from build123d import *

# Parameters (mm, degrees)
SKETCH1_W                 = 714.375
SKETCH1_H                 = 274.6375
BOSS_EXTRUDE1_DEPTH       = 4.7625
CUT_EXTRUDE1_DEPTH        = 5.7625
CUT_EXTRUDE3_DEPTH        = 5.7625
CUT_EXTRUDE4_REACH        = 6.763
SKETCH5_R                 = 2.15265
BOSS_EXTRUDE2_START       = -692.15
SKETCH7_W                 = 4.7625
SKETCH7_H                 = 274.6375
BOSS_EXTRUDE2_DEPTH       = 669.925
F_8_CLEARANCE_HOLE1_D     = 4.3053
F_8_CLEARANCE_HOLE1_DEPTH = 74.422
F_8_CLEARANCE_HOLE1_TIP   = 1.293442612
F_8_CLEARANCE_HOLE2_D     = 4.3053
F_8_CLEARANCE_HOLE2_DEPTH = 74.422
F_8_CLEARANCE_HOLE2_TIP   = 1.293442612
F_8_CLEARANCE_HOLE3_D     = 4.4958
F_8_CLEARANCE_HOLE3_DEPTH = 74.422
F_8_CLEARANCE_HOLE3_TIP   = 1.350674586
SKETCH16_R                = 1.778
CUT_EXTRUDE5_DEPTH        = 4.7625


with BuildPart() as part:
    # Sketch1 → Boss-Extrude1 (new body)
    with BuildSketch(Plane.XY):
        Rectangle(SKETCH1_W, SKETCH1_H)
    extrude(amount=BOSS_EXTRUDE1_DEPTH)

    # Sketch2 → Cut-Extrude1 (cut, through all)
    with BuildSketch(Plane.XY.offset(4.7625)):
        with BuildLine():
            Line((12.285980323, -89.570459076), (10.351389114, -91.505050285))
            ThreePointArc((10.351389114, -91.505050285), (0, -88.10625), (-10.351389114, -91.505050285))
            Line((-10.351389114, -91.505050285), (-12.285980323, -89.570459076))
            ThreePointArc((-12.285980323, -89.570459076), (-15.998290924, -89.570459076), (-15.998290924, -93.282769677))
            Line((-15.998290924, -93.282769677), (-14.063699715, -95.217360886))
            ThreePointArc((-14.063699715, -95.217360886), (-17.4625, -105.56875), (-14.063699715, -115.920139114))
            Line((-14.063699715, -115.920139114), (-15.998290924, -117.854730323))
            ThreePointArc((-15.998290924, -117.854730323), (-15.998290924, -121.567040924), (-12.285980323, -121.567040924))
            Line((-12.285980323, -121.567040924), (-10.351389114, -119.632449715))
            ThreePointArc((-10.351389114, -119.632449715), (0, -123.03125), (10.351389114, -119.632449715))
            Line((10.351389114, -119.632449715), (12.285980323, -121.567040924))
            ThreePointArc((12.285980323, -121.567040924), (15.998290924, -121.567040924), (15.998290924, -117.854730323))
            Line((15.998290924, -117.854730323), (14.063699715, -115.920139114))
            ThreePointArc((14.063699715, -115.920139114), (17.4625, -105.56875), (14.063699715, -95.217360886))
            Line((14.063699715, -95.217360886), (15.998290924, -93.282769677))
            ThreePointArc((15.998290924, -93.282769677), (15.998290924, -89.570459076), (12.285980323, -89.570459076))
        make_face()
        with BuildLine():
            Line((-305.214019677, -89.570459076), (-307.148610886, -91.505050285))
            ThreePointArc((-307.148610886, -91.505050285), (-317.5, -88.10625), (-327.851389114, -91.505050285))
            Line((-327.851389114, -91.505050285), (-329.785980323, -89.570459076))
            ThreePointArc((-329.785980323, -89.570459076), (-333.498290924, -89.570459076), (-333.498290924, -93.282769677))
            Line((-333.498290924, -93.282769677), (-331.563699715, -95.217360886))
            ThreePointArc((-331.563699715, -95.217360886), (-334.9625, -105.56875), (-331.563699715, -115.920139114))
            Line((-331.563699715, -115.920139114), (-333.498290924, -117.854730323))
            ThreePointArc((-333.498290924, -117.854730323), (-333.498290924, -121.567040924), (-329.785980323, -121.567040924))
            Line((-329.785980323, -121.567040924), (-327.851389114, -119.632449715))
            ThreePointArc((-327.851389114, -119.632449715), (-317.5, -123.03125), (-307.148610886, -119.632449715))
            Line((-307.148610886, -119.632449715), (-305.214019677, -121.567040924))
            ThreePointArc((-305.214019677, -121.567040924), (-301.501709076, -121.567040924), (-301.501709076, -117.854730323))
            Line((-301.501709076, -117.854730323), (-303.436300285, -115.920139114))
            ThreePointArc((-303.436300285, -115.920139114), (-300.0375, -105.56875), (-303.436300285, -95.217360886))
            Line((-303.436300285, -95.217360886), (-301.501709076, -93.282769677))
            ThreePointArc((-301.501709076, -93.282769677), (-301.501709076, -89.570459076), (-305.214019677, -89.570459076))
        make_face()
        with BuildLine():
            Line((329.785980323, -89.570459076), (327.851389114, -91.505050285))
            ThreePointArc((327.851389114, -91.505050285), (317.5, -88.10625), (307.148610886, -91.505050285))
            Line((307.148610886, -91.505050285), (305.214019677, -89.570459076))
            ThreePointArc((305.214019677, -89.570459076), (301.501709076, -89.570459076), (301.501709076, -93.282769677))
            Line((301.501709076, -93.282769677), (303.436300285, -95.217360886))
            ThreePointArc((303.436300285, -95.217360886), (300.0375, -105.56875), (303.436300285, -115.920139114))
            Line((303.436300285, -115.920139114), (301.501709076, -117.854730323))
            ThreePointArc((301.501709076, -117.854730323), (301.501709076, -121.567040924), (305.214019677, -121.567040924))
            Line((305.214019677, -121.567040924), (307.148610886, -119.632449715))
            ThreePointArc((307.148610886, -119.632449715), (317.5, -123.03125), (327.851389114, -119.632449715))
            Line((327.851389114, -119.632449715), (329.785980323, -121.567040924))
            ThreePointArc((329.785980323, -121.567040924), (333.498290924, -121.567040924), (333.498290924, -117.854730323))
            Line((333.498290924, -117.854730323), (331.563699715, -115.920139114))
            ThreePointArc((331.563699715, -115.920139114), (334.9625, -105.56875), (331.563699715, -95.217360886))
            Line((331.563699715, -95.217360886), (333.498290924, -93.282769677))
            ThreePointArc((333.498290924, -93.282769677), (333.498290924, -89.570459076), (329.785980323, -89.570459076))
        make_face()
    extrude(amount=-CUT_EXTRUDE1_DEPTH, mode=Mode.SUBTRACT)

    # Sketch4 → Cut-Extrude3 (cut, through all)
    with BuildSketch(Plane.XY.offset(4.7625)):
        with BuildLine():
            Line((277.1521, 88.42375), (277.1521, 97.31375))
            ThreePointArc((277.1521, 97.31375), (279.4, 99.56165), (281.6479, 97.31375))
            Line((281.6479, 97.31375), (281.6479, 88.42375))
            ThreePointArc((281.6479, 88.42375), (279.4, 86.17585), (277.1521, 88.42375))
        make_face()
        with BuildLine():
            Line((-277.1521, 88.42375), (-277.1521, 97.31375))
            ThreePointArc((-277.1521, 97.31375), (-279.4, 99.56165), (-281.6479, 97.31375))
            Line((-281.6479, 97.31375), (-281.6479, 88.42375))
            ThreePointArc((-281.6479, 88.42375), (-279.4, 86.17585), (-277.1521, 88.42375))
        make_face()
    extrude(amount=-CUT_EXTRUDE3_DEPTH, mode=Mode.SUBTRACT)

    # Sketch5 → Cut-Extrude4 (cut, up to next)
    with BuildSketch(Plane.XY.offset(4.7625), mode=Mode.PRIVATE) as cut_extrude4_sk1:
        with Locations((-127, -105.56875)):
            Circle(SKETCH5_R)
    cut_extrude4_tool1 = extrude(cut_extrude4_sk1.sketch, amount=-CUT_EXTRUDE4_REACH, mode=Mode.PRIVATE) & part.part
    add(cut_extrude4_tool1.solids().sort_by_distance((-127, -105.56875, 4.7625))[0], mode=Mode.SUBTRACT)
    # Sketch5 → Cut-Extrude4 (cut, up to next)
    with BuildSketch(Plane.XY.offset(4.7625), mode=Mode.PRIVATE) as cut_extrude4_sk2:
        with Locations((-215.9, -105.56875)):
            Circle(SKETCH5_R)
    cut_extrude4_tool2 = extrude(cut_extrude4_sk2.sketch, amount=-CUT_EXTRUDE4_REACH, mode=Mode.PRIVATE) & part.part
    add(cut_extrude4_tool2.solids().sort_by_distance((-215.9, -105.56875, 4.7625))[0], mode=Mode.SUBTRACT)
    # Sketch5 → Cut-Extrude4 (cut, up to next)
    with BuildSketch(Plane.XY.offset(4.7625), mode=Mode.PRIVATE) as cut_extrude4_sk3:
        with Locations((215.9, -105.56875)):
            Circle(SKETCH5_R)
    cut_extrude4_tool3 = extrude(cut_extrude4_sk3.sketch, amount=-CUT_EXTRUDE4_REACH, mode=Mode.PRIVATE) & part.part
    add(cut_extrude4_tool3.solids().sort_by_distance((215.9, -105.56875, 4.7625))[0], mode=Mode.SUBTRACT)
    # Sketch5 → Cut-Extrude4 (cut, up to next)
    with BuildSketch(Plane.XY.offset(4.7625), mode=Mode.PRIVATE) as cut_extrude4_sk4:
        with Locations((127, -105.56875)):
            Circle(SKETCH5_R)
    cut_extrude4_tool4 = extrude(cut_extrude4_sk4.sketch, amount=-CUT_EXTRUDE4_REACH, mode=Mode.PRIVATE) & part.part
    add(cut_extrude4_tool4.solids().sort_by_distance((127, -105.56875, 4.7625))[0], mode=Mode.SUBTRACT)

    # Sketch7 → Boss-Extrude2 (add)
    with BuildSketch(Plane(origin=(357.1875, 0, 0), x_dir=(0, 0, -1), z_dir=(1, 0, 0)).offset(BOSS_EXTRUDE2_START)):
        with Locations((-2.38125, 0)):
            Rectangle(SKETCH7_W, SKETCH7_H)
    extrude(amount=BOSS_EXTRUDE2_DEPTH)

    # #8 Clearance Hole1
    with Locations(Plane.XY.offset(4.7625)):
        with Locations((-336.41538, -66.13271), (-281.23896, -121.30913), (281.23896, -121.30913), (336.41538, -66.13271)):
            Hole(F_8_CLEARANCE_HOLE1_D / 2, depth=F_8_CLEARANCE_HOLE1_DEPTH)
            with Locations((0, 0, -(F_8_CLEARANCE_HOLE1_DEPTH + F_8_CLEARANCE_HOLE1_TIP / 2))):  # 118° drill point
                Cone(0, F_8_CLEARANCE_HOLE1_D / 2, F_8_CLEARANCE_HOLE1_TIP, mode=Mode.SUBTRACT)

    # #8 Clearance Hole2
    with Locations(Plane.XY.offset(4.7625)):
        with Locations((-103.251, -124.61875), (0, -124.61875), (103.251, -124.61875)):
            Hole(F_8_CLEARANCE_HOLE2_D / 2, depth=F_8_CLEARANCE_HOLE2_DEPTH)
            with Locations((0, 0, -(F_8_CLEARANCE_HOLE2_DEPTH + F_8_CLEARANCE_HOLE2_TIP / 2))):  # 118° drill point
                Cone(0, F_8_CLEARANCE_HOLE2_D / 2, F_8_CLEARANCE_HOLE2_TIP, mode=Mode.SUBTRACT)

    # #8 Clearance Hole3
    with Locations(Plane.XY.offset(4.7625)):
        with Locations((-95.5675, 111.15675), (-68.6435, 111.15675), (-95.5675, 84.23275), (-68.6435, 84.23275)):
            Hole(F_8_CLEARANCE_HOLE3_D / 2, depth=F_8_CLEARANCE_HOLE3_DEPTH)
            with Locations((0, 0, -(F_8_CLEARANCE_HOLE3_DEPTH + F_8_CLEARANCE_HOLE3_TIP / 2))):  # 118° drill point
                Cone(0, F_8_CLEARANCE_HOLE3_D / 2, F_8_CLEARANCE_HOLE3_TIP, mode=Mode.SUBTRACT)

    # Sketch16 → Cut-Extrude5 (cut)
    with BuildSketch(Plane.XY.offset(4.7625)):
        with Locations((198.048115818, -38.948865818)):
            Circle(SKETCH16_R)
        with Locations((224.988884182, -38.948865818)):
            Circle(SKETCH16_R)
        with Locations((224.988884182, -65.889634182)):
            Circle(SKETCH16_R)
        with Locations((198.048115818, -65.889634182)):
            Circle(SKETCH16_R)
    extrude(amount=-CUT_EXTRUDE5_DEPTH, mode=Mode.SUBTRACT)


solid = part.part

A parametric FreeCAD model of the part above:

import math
import FreeCAD as App
import Part
import Sketcher

V = App.Vector
Q = App.Units.Quantity


def add_polygon(sketch, points):
    """Adds a closed chain of lines whose ends are joined by coincident constraints."""
    first, n = sketch.GeometryCount, len(points)
    for a, b in zip(points, points[1:] + points[:1]):
        sketch.addGeometry(Part.LineSegment(App.Vector(*a, 0), App.Vector(*b, 0)), False)
    for i in range(n):
        sketch.addConstraint(Sketcher.Constraint("Coincident", first + i, 2, first + (i + 1) % n, 1))

doc = App.newDocument("Part")
body = doc.addObject("PartDesign::Body", "Body")

sketch1 = body.newObject("Sketcher::SketchObject", "Sketch")
sketch1.AttachmentSupport = (doc.getObject("XY_Plane"), [""])
sketch1.MapMode = "FlatFace"
add_polygon(sketch1, [(-357, 137), (-357, -137), (357, -137), (357, 137)])
sketch1.addConstraint([
    Sketcher.Constraint("Vertical", 0),
    Sketcher.Constraint("Horizontal", 1),
    Sketcher.Constraint("Vertical", 2),
    Sketcher.Constraint("Horizontal", 3),
    Sketcher.Constraint("Symmetric", 0, 2, 2, 2, -1, 1),
    Sketcher.Constraint("DistanceX", 1, 1, 1, 2, Q("28.125 in")),
    Sketcher.Constraint("DistanceY", 0, 2, 0, 1, Q("10.8125 in")),
])
pad1 = body.newObject("PartDesign::Pad", "Pad")
pad1.Profile = sketch1
pad1.Length = Q("0.1875 in")

sketch2 = body.newObject("Sketcher::SketchObject", "Sketch001")
sketch2.AttachmentSupport = (doc.getObject("XY_Plane"), [""])
sketch2.MapMode = "FlatFace"
sketch2.AttachmentOffset = App.Placement(V(0, 0, 0.1875 * 25.4), App.Rotation())
sketch2.addGeometry([
    Part.LineSegment(V(12.3, -89.6, 0), V(10.4, -91.5, 0)),
    Part.ArcOfCircle(Part.Circle(V(0, -105.6, 0), V(0, 0, 1), 17.5), math.radians(54), math.radians(126)),
    Part.LineSegment(V(-10.4, -91.5, 0), V(-12.3, -89.6, 0)),
    Part.ArcOfCircle(Part.Circle(V(-14.1, -91.4, 0), V(0, 0, 1), 2.6), math.radians(45), math.radians(225)),
    Part.LineSegment(V(-16, -93.3, 0), V(-14.1, -95.2, 0)),
    Part.ArcOfCircle(Part.Circle(V(0, -105.6, 0), V(0, 0, 1), 17.5), math.radians(144), math.radians(216)),
    Part.LineSegment(V(-14.1, -115.9, 0), V(-16, -117.9, 0)),
    Part.ArcOfCircle(Part.Circle(V(-14.1, -119.7, 0), V(0, 0, 1), 2.6), math.radians(135), math.radians(315)),
    Part.LineSegment(V(-12.3, -121.6, 0), V(-10.4, -119.6, 0)),
    Part.ArcOfCircle(Part.Circle(V(0, -105.6, 0), V(0, 0, 1), 17.5), math.radians(-126), math.radians(-54)),
    Part.LineSegment(V(10.4, -119.6, 0), V(12.3, -121.6, 0)),
    Part.ArcOfCircle(Part.Circle(V(14.1, -119.7, 0), V(0, 0, 1), 2.6), math.radians(-135), math.radians(45)),
    Part.LineSegment(V(16, -117.9, 0), V(14.1, -115.9, 0)),
    Part.ArcOfCircle(Part.Circle(V(0, -105.6, 0), V(0, 0, 1), 17.5), math.radians(-36), math.radians(36)),
    Part.LineSegment(V(14.1, -95.2, 0), V(16, -93.3, 0)),
    Part.ArcOfCircle(Part.Circle(V(14.1, -91.4, 0), V(0, 0, 1), 2.6), math.radians(-45), math.radians(135)),
    Part.LineSegment(V(-305.2, -89.6, 0), V(-307.1, -91.5, 0)),
    Part.ArcOfCircle(Part.Circle(V(-317.5, -105.6, 0), V(0, 0, 1), 17.5), math.radians(54), math.radians(126)),
    Part.LineSegment(V(-327.9, -91.5, 0), V(-329.8, -89.6, 0)),
    Part.ArcOfCircle(Part.Circle(V(-331.6, -91.4, 0), V(0, 0, 1), 2.6), math.radians(45), math.radians(225)),
    Part.LineSegment(V(-333.5, -93.3, 0), V(-331.6, -95.2, 0)),
    Part.ArcOfCircle(Part.Circle(V(-317.5, -105.6, 0), V(0, 0, 1), 17.5), math.radians(144), math.radians(216)),
    Part.LineSegment(V(-331.6, -115.9, 0), V(-333.5, -117.9, 0)),
    Part.ArcOfCircle(Part.Circle(V(-331.6, -119.7, 0), V(0, 0, 1), 2.6), math.radians(135), math.radians(315)),
    Part.LineSegment(V(-329.8, -121.6, 0), V(-327.9, -119.6, 0)),
    Part.ArcOfCircle(Part.Circle(V(-317.5, -105.6, 0), V(0, 0, 1), 17.5), math.radians(-126), math.radians(-54)),
    Part.LineSegment(V(-307.1, -119.6, 0), V(-305.2, -121.6, 0)),
    Part.ArcOfCircle(Part.Circle(V(-303.4, -119.7, 0), V(0, 0, 1), 2.6), math.radians(-135), math.radians(45)),
    Part.LineSegment(V(-301.5, -117.9, 0), V(-303.4, -115.9, 0)),
    Part.ArcOfCircle(Part.Circle(V(-317.5, -105.6, 0), V(0, 0, 1), 17.5), math.radians(-36), math.radians(36)),
    Part.LineSegment(V(-303.4, -95.2, 0), V(-301.5, -93.3, 0)),
    Part.ArcOfCircle(Part.Circle(V(-303.4, -91.4, 0), V(0, 0, 1), 2.6), math.radians(-45), math.radians(135)),
    Part.LineSegment(V(329.8, -89.6, 0), V(327.9, -91.5, 0)),
    Part.ArcOfCircle(Part.Circle(V(317.5, -105.6, 0), V(0, 0, 1), 17.5), math.radians(54), math.radians(126)),
    Part.LineSegment(V(307.1, -91.5, 0), V(305.2, -89.6, 0)),
    Part.ArcOfCircle(Part.Circle(V(303.4, -91.4, 0), V(0, 0, 1), 2.6), math.radians(45), math.radians(225)),
    Part.LineSegment(V(301.5, -93.3, 0), V(303.4, -95.2, 0)),
    Part.ArcOfCircle(Part.Circle(V(317.5, -105.6, 0), V(0, 0, 1), 17.5), math.radians(144), math.radians(216)),
    Part.LineSegment(V(303.4, -115.9, 0), V(301.5, -117.9, 0)),
    Part.ArcOfCircle(Part.Circle(V(303.4, -119.7, 0), V(0, 0, 1), 2.6), math.radians(135), math.radians(315)),
    Part.LineSegment(V(305.2, -121.6, 0), V(307.1, -119.6, 0)),
    Part.ArcOfCircle(Part.Circle(V(317.5, -105.6, 0), V(0, 0, 1), 17.5), math.radians(-126), math.radians(-54)),
    Part.LineSegment(V(327.9, -119.6, 0), V(329.8, -121.6, 0)),
    Part.ArcOfCircle(Part.Circle(V(331.6, -119.7, 0), V(0, 0, 1), 2.6), math.radians(-135), math.radians(45)),
    Part.LineSegment(V(333.5, -117.9, 0), V(331.6, -115.9, 0)),
    Part.ArcOfCircle(Part.Circle(V(317.5, -105.6, 0), V(0, 0, 1), 17.5), math.radians(-36), math.radians(36)),
    Part.LineSegment(V(331.6, -95.2, 0), V(333.5, -93.3, 0)),
    Part.ArcOfCircle(Part.Circle(V(331.6, -91.4, 0), V(0, 0, 1), 2.6), math.radians(-45), math.radians(135)),
], False)
sketch2.addConstraint([
    Sketcher.Constraint("Coincident", 0, 2, 1, 1),
    Sketcher.Constraint("Coincident", 1, 2, 2, 1),
    Sketcher.Constraint("Tangent", 2, 2, 3, 1),
    Sketcher.Constraint("Tangent", 3, 2, 4, 1),
    Sketcher.Constraint("Coincident", 4, 2, 5, 1),
    Sketcher.Constraint("Coincident", 5, 2, 6, 1),
    Sketcher.Constraint("Tangent", 6, 2, 7, 1),
    Sketcher.Constraint("Tangent", 7, 2, 8, 1),
    Sketcher.Constraint("Coincident", 8, 2, 9, 1),
    Sketcher.Constraint("Coincident", 9, 2, 10, 1),
    Sketcher.Constraint("Tangent", 10, 2, 11, 1),
    Sketcher.Constraint("Tangent", 11, 2, 12, 1),
    Sketcher.Constraint("Coincident", 12, 2, 13, 1),
    Sketcher.Constraint("Coincident", 13, 2, 14, 1),
    Sketcher.Constraint("Tangent", 14, 2, 15, 1),
    Sketcher.Constraint("Tangent", 15, 2, 0, 1),
    Sketcher.Constraint("Coincident", 16, 2, 17, 1),
    Sketcher.Constraint("Coincident", 17, 2, 18, 1),
    Sketcher.Constraint("Tangent", 18, 2, 19, 1),
    Sketcher.Constraint("Tangent", 19, 2, 20, 1),
    Sketcher.Constraint("Coincident", 20, 2, 21, 1),
    Sketcher.Constraint("Coincident", 21, 2, 22, 1),
    Sketcher.Constraint("Tangent", 22, 2, 23, 1),
    Sketcher.Constraint("Tangent", 23, 2, 24, 1),
    Sketcher.Constraint("Coincident", 24, 2, 25, 1),
    Sketcher.Constraint("Coincident", 25, 2, 26, 1),
    Sketcher.Constraint("Tangent", 26, 2, 27, 1),
    Sketcher.Constraint("Tangent", 27, 2, 28, 1),
    Sketcher.Constraint("Coincident", 28, 2, 29, 1),
    Sketcher.Constraint("Coincident", 29, 2, 30, 1),
    Sketcher.Constraint("Tangent", 30, 2, 31, 1),
    Sketcher.Constraint("Tangent", 31, 2, 16, 1),
    Sketcher.Constraint("Coincident", 32, 2, 33, 1),
    Sketcher.Constraint("Coincident", 33, 2, 34, 1),
    Sketcher.Constraint("Tangent", 34, 2, 35, 1),
    Sketcher.Constraint("Tangent", 35, 2, 36, 1),
    Sketcher.Constraint("Coincident", 36, 2, 37, 1),
    Sketcher.Constraint("Coincident", 37, 2, 38, 1),
    Sketcher.Constraint("Tangent", 38, 2, 39, 1),
    Sketcher.Constraint("Tangent", 39, 2, 40, 1),
    Sketcher.Constraint("Coincident", 40, 2, 41, 1),
    Sketcher.Constraint("Coincident", 41, 2, 42, 1),
    Sketcher.Constraint("Tangent", 42, 2, 43, 1),
    Sketcher.Constraint("Tangent", 43, 2, 44, 1),
    Sketcher.Constraint("Coincident", 44, 2, 45, 1),
    Sketcher.Constraint("Coincident", 45, 2, 46, 1),
    Sketcher.Constraint("Tangent", 46, 2, 47, 1),
    Sketcher.Constraint("Tangent", 47, 2, 32, 1),
    Sketcher.Constraint("Coincident", 5, 3, 1, 3),
    Sketcher.Constraint("Coincident", 9, 3, 1, 3),
    Sketcher.Constraint("Coincident", 13, 3, 1, 3),
    Sketcher.Constraint("Coincident", 21, 3, 17, 3),
    Sketcher.Constraint("Coincident", 25, 3, 17, 3),
    Sketcher.Constraint("Coincident", 29, 3, 17, 3),
    Sketcher.Constraint("Coincident", 37, 3, 33, 3),
    Sketcher.Constraint("Coincident", 41, 3, 33, 3),
    Sketcher.Constraint("Coincident", 45, 3, 33, 3),
    Sketcher.Constraint("Equal", 1, 5),
    Sketcher.Constraint("Equal", 3, 7),
    Sketcher.Constraint("Equal", 5, 9),
    Sketcher.Constraint("Equal", 7, 11),
    Sketcher.Constraint("Equal", 9, 13),
    Sketcher.Constraint("Equal", 11, 15),
    Sketcher.Constraint("Equal", 13, 17),
    Sketcher.Constraint("Equal", 15, 19),
    Sketcher.Constraint("Equal", 17, 21),
    Sketcher.Constraint("Equal", 19, 23),
    Sketcher.Constraint("Equal", 21, 25),
    Sketcher.Constraint("Equal", 23, 27),
    Sketcher.Constraint("Equal", 25, 29),
    Sketcher.Constraint("Equal", 27, 31),
    Sketcher.Constraint("Equal", 29, 33),
    Sketcher.Constraint("Equal", 31, 35),
    Sketcher.Constraint("Equal", 33, 37),
    Sketcher.Constraint("Equal", 35, 39),
    Sketcher.Constraint("Equal", 37, 41),
    Sketcher.Constraint("Equal", 39, 43),
    Sketcher.Constraint("Equal", 41, 45),
    Sketcher.Constraint("Equal", 43, 47),
    Sketcher.Constraint("Symmetric", 7, 3, 11, 3, -2),
    Sketcher.Constraint("Symmetric", 3, 3, 15, 3, -2),
    Sketcher.Constraint("Symmetric", 17, 3, 33, 3, -2),
    Sketcher.Constraint("Symmetric", 31, 3, 35, 3, -2),
    Sketcher.Constraint("Symmetric", 27, 3, 39, 3, -2),
    Sketcher.Constraint("Symmetric", 23, 3, 43, 3, -2),
    Sketcher.Constraint("Symmetric", 19, 3, 47, 3, -2),
    Sketcher.Constraint("Symmetric", 0, 2, 1, 2, -2),
    Sketcher.Constraint("Perpendicular", 0, 2),
    Sketcher.Constraint("Parallel", 2, 4),
    Sketcher.Constraint("Perpendicular", 4, 6),
    Sketcher.Constraint("Parallel", 6, 8),
    Sketcher.Constraint("Perpendicular", 8, 10),
    Sketcher.Constraint("Parallel", 10, 12),
    Sketcher.Constraint("Perpendicular", 12, 14),
    Sketcher.Constraint("Parallel", 14, 16),
    Sketcher.Constraint("Perpendicular", 16, 18),
    Sketcher.Constraint("Parallel", 18, 20),
    Sketcher.Constraint("Perpendicular", 20, 22),
    Sketcher.Constraint("Parallel", 22, 24),
    Sketcher.Constraint("Perpendicular", 24, 26),
    Sketcher.Constraint("Parallel", 26, 28),
    Sketcher.Constraint("Perpendicular", 28, 30),
    Sketcher.Constraint("Parallel", 30, 32),
    Sketcher.Constraint("Perpendicular", 32, 34),
    Sketcher.Constraint("Parallel", 34, 36),
    Sketcher.Constraint("Perpendicular", 36, 38),
    Sketcher.Constraint("Parallel", 38, 40),
    Sketcher.Constraint("Perpendicular", 40, 42),
    Sketcher.Constraint("Parallel", 42, 44),
    Sketcher.Constraint("Perpendicular", 44, 46),
    Sketcher.Constraint("Horizontal", 13, 3, 17, 3),
    Sketcher.Constraint("Horizontal", 15, 3, 19, 3),
    Sketcher.Constraint("Horizontal", 11, 3, 23, 3),
    Sketcher.Constraint("Horizontal", 23, 3, 27, 3),
    Sketcher.Constraint("Horizontal", 19, 3, 31, 3),
    Sketcher.Constraint("Horizontal", 1, 2, 16, 2),
    Sketcher.Constraint("Horizontal", 16, 2, 17, 2),
    Sketcher.Constraint("Horizontal", 12, 2, 21, 2),
    Sketcher.Constraint("Horizontal", 24, 2, 25, 2),
    Sketcher.Constraint("Vertical", 3, 3, 7, 3),
    Sketcher.Constraint("Vertical", 4, 2, 5, 2),
    Sketcher.Constraint("Equal", 2, 4),
    Sketcher.Constraint("Radius", 1, Q("0.6875 in")),
    Sketcher.Constraint("DistanceX", 17, 3, -1, 1, Q("12.5 in")),
    Sketcher.Constraint("Radius", 3, Q("2.625 mm")),
    Sketcher.Constraint("DistanceY", 1, 3, -1, 1, Q("4.15625 in")),
    Sketcher.Constraint("DistanceX", 2, 2, -1, 1, Q("0.4837 in")),
])
pocket1 = body.newObject("PartDesign::Pocket", "Pocket")
pocket1.Profile = sketch2
pocket1.Type = "ThroughAll"

sketch3 = body.newObject("Sketcher::SketchObject", "Sketch002")
sketch3.AttachmentSupport = (doc.getObject("XY_Plane"), [""])
sketch3.MapMode = "FlatFace"
sketch3.AttachmentOffset = App.Placement(V(0, 0, 0.1875 * 25.4), App.Rotation())
sketch3.addGeometry([
    Part.LineSegment(V(277.2, 97.3, 0), V(277.2, 88.4, 0)),
    Part.ArcOfCircle(Part.Circle(V(279.4, 88.4, 0), V(0, 0, 1), 2.2), math.radians(180), math.radians(360)),
    Part.LineSegment(V(281.6, 88.4, 0), V(281.6, 97.3, 0)),
    Part.ArcOfCircle(Part.Circle(V(279.4, 97.3, 0), V(0, 0, 1), 2.2), math.radians(0), math.radians(180)),
    Part.LineSegment(V(-277.2, 88.4, 0), V(-277.2, 97.3, 0)),
    Part.ArcOfCircle(Part.Circle(V(-279.4, 97.3, 0), V(0, 0, 1), 2.2), math.radians(0), math.radians(180)),
    Part.LineSegment(V(-281.6, 97.3, 0), V(-281.6, 88.4, 0)),
    Part.ArcOfCircle(Part.Circle(V(-279.4, 88.4, 0), V(0, 0, 1), 2.2), math.radians(180), math.radians(360)),
], False)
sketch3.addConstraint([
    Sketcher.Constraint("Tangent", 0, 2, 1, 1),
    Sketcher.Constraint("Tangent", 1, 2, 2, 1),
    Sketcher.Constraint("Tangent", 2, 2, 3, 1),
    Sketcher.Constraint("Tangent", 3, 2, 0, 1),
    Sketcher.Constraint("Tangent", 4, 2, 5, 1),
    Sketcher.Constraint("Tangent", 5, 2, 6, 1),
    Sketcher.Constraint("Tangent", 6, 2, 7, 1),
    Sketcher.Constraint("Tangent", 7, 2, 4, 1),
    Sketcher.Constraint("Vertical", 0),
    Sketcher.Constraint("Vertical", 2),
    Sketcher.Constraint("Vertical", 4),
    Sketcher.Constraint("Vertical", 6),
    Sketcher.Constraint("Equal", 3, 5),
    Sketcher.Constraint("Symmetric", 3, 3, 5, 3, -2),
    Sketcher.Constraint("Horizontal", 1, 3, 7, 3),
    Sketcher.Constraint("DistanceX", -1, 1, 1, 3, Q("11 in")),
    Sketcher.Constraint("DistanceY", 0, 2, 0, 1, Q("0.35 in")),
    Sketcher.Constraint("Radius", 1, Q("0.0885 in")),
    Sketcher.Constraint("DistanceY", -1, 1, 1, 3, Q("88.42375 mm")),
])
pocket2 = body.newObject("PartDesign::Pocket", "Pocket001")
pocket2.Profile = sketch3
pocket2.Type = "ThroughAll"

sketch4 = body.newObject("Sketcher::SketchObject", "Sketch003")
sketch4.AttachmentSupport = (doc.getObject("XY_Plane"), [""])
sketch4.MapMode = "FlatFace"
sketch4.AttachmentOffset = App.Placement(V(0, 0, 0.1875 * 25.4), App.Rotation())
sketch4.addGeometry(Part.Circle(V(-127, -105.6, 0), V(0, 0, 1), 2.2), False)
sketch4.addConstraint([
    Sketcher.Constraint("DistanceX", 0, 3, -1, 1, Q("5 in")),
    Sketcher.Constraint("Diameter", 0, Q("0.1695 in")),
    Sketcher.Constraint("DistanceY", 0, 3, -1, 1, Q("4.15625 in")),
])
pocket3 = body.newObject("PartDesign::Pocket", "Pocket002")
pocket3.Profile = sketch4
pocket3.Type = "UpToFirst"

sketch5 = body.newObject("Sketcher::SketchObject", "Sketch004")
sketch5.AttachmentSupport = (doc.getObject("XY_Plane"), [""])
sketch5.MapMode = "FlatFace"
sketch5.AttachmentOffset = App.Placement(V(0, 0, 0.1875 * 25.4), App.Rotation())
sketch5.addGeometry(Part.Circle(V(-215.9, -105.6, 0), V(0, 0, 1), 2.2), False)
sketch5.addConstraint([
    Sketcher.Constraint("Diameter", 0, Q("0.1695 in")),
    Sketcher.Constraint("DistanceX", 0, 3, -1, 1, Q("8.5 in")),
    Sketcher.Constraint("DistanceY", 0, 3, -1, 1, Q("4.15625 in")),
])
pocket4 = body.newObject("PartDesign::Pocket", "Pocket003")
pocket4.Profile = sketch5
pocket4.Type = "UpToFirst"

sketch6 = body.newObject("Sketcher::SketchObject", "Sketch005")
sketch6.AttachmentSupport = (doc.getObject("XY_Plane"), [""])
sketch6.MapMode = "FlatFace"
sketch6.AttachmentOffset = App.Placement(V(0, 0, 0.1875 * 25.4), App.Rotation())
sketch6.addGeometry(Part.Circle(V(215.9, -105.6, 0), V(0, 0, 1), 2.2), False)
sketch6.addConstraint([
    Sketcher.Constraint("Diameter", 0, Q("0.1695 in")),
    Sketcher.Constraint("DistanceX", -1, 1, 0, 3, Q("8.5 in")),
    Sketcher.Constraint("DistanceY", 0, 3, -1, 1, Q("4.15625 in")),
])
pocket5 = body.newObject("PartDesign::Pocket", "Pocket004")
pocket5.Profile = sketch6
pocket5.Type = "UpToFirst"

sketch7 = body.newObject("Sketcher::SketchObject", "Sketch006")
sketch7.AttachmentSupport = (doc.getObject("XY_Plane"), [""])
sketch7.MapMode = "FlatFace"
sketch7.AttachmentOffset = App.Placement(V(0, 0, 0.1875 * 25.4), App.Rotation())
sketch7.addGeometry(Part.Circle(V(127, -105.6, 0), V(0, 0, 1), 2.2), False)
sketch7.addConstraint([
    Sketcher.Constraint("DistanceX", -1, 1, 0, 3, Q("5 in")),
    Sketcher.Constraint("Diameter", 0, Q("0.1695 in")),
    Sketcher.Constraint("DistanceY", 0, 3, -1, 1, Q("4.15625 in")),
])
pocket6 = body.newObject("PartDesign::Pocket", "Pocket005")
pocket6.Profile = sketch7
pocket6.Type = "UpToFirst"

sketch8 = body.newObject("Sketcher::SketchObject", "Sketch007")
sketch8.AttachmentSupport = (doc.getObject("YZ_Plane"), [""])
sketch8.MapMode = "FlatFace"
sketch8.AttachmentOffset = App.Placement(V(0, 0, -13.1875 * 25.4), App.Rotation())
add_polygon(sketch8, [(137.3, 4.8), (-137.3, 4.8), (-137.3, 0), (137.3, 0)])
sketch8.addConstraint([
    Sketcher.Constraint("Horizontal", 0),
    Sketcher.Constraint("Vertical", 1),
    Sketcher.Constraint("Horizontal", 2),
    Sketcher.Constraint("Vertical", 3),
    Sketcher.Constraint("Symmetric", 1, 2, 2, 2, -1, 1),
    Sketcher.Constraint("DistanceX", 0, 2, 0, 1, Q("10.8125 in")),
    Sketcher.Constraint("DistanceY", 1, 2, 1, 1, Q("0.1875 in")),
])
pad2 = body.newObject("PartDesign::Pad", "Pad001")
pad2.Profile = sketch8
pad2.Length = Q("26.375 in")

sketch9 = body.newObject("Sketcher::SketchObject", "Sketch008")
sketch9.AttachmentSupport = (doc.getObject("XY_Plane"), [""])
sketch9.MapMode = "FlatFace"
sketch9.AttachmentOffset = App.Placement(V(0, 0, 0.1875 * 25.4), App.Rotation())
sketch9.addGeometry([
    Part.Circle(V(-336.4, -66.1, 0), V(0, 0, 1), 2.2),
    Part.Circle(V(-281.2, -121.3, 0), V(0, 0, 1), 2.2),
    Part.Circle(V(281.2, -121.3, 0), V(0, 0, 1), 2.2),
    Part.Circle(V(336.4, -66.1, 0), V(0, 0, 1), 2.2),
], False)
sketch9.addConstraint([
    Sketcher.Constraint("Equal", 0, 1),
    Sketcher.Constraint("Equal", 1, 2),
    Sketcher.Constraint("Equal", 2, 3),
    Sketcher.Constraint("Symmetric", 1, 3, 2, 3, -2),
    Sketcher.Constraint("Symmetric", 0, 3, 3, 3, -2),
    Sketcher.Constraint("Diameter", 0, Q("0.1695 in")),
    Sketcher.Constraint("DistanceX", 0, 3, -1, 1, Q("13.2447 in")),
    Sketcher.Constraint("DistanceX", 1, 3, -1, 1, Q("11.0724 in")),
    Sketcher.Constraint("DistanceY", 1, 3, 0, 3, Q("2.1723 in")),
    Sketcher.Constraint("DistanceY", 0, 3, -1, 1, Q("66.13271 mm")),
])
doc.recompute()
hole = body.newObject("PartDesign::Hole", "Hole")
hole.Profile = sketch9
hole.ThreadType = "None"
hole.Diameter = Q("0.1695 in")
hole.DepthType = "Dimension"
hole.Depth = Q("2.93 in")
hole.DrillPoint = "Angled"
hole.DrillPointAngle = 118

sketch10 = body.newObject("Sketcher::SketchObject", "Sketch009")
sketch10.AttachmentSupport = (doc.getObject("XY_Plane"), [""])
sketch10.MapMode = "FlatFace"
sketch10.AttachmentOffset = App.Placement(V(0, 0, 0.1875 * 25.4), App.Rotation())
sketch10.addGeometry([
    Part.Circle(V(-103.3, -124.6, 0), V(0, 0, 1), 2.2),
    Part.Circle(V(0, -124.6, 0), V(0, 0, 1), 2.2),
    Part.Circle(V(103.3, -124.6, 0), V(0, 0, 1), 2.2),
], False)
sketch10.addConstraint([
    Sketcher.Constraint("Equal", 0, 1),
    Sketcher.Constraint("Equal", 1, 2),
    Sketcher.Constraint("Symmetric", 0, 3, 2, 3, -2),
    Sketcher.Constraint("PointOnObject", 1, 3, -2),
    Sketcher.Constraint("Horizontal", 0, 3, 1, 3),
    Sketcher.Constraint("Diameter", 0, Q("0.1695 in")),
    Sketcher.Constraint("DistanceX", 0, 3, 2, 3, Q("8.13 in")),
    Sketcher.Constraint("DistanceY", 0, 3, -1, 1, Q("4.90625 in")),
])
doc.recompute()
hole2 = body.newObject("PartDesign::Hole", "Hole001")
hole2.Profile = sketch10
hole2.ThreadType = "None"
hole2.Diameter = Q("0.1695 in")
hole2.DepthType = "Dimension"
hole2.Depth = Q("2.93 in")
hole2.DrillPoint = "Angled"
hole2.DrillPointAngle = 118

sketch11 = body.newObject("Sketcher::SketchObject", "Sketch010")
sketch11.AttachmentSupport = (doc.getObject("XY_Plane"), [""])
sketch11.MapMode = "FlatFace"
sketch11.AttachmentOffset = App.Placement(V(0, 0, 0.1875 * 25.4), App.Rotation())
sketch11.addGeometry([
    Part.Circle(V(-95.6, 111.2, 0), V(0, 0, 1), 2.2),
    Part.Circle(V(-68.6, 111.2, 0), V(0, 0, 1), 2.2),
    Part.Circle(V(-95.6, 84.2, 0), V(0, 0, 1), 2.2),
    Part.Circle(V(-68.6, 84.2, 0), V(0, 0, 1), 2.2),
], False)
sketch11.addConstraint([
    Sketcher.Constraint("Equal", 0, 1),
    Sketcher.Constraint("Equal", 1, 2),
    Sketcher.Constraint("Equal", 2, 3),
    Sketcher.Constraint("Horizontal", 0, 3, 1, 3),
    Sketcher.Constraint("Horizontal", 2, 3, 3, 3),
    Sketcher.Constraint("Vertical", 0, 3, 2, 3),
    Sketcher.Constraint("Vertical", 1, 3, 3, 3),
    Sketcher.Constraint("Diameter", 0, Q("0.177 in")),
    Sketcher.Constraint("DistanceX", 0, 3, 1, 3, Q("1.06 in")),
    Sketcher.Constraint("DistanceY", 2, 3, 0, 3, Q("1.06 in")),
    Sketcher.Constraint("DistanceX", 0, 3, -1, 1, Q("3.7625 in")),
    Sketcher.Constraint("DistanceY", -1, 1, 0, 3, Q("111.15675 mm")),
])
doc.recompute()
hole3 = body.newObject("PartDesign::Hole", "Hole002")
hole3.Profile = sketch11
hole3.ThreadType = "None"
hole3.Diameter = Q("0.177 in")
hole3.DepthType = "Dimension"
hole3.Depth = Q("2.93 in")
hole3.DrillPoint = "Angled"
hole3.DrillPointAngle = 118

sketch12 = body.newObject("Sketcher::SketchObject", "Sketch011")
sketch12.AttachmentSupport = (doc.getObject("XY_Plane"), [""])
sketch12.MapMode = "FlatFace"
sketch12.AttachmentOffset = App.Placement(V(0, 0, 0.1875 * 25.4), App.Rotation())
sketch12.addGeometry([
    Part.Circle(V(198, -38.9, 0), V(0, 0, 1), 1.8),
    Part.Circle(V(225, -38.9, 0), V(0, 0, 1), 1.8),
    Part.Circle(V(225, -65.9, 0), V(0, 0, 1), 1.8),
    Part.Circle(V(198, -65.9, 0), V(0, 0, 1), 1.8),
], False)
sketch12.addConstraint([
    Sketcher.Constraint("Equal", 0, 1),
    Sketcher.Constraint("Equal", 1, 2),
    Sketcher.Constraint("Equal", 2, 3),
    Sketcher.Constraint("Horizontal", 0, 3, 1, 3),
    Sketcher.Constraint("Horizontal", 2, 3, 3, 3),
    Sketcher.Constraint("Vertical", 1, 3, 2, 3),
    Sketcher.Constraint("Vertical", 0, 3, 3, 3),
    Sketcher.Constraint("Diameter", 0, Q("0.14 in")),
    Sketcher.Constraint("DistanceX", 0, 3, 1, 3, Q("26.940768 mm")),
    Sketcher.Constraint("DistanceY", 2, 3, 1, 3, Q("26.940768 mm")),
    Sketcher.Constraint("DistanceX", -1, 1, 0, 3, Q("198.048116 mm")),
    Sketcher.Constraint("DistanceY", 0, 3, -1, 1, Q("38.948866 mm")),
])
pocket7 = body.newObject("PartDesign::Pocket", "Pocket006")
pocket7.Profile = sketch12
pocket7.Length = Q("0.1875 in")

doc.recompute()
